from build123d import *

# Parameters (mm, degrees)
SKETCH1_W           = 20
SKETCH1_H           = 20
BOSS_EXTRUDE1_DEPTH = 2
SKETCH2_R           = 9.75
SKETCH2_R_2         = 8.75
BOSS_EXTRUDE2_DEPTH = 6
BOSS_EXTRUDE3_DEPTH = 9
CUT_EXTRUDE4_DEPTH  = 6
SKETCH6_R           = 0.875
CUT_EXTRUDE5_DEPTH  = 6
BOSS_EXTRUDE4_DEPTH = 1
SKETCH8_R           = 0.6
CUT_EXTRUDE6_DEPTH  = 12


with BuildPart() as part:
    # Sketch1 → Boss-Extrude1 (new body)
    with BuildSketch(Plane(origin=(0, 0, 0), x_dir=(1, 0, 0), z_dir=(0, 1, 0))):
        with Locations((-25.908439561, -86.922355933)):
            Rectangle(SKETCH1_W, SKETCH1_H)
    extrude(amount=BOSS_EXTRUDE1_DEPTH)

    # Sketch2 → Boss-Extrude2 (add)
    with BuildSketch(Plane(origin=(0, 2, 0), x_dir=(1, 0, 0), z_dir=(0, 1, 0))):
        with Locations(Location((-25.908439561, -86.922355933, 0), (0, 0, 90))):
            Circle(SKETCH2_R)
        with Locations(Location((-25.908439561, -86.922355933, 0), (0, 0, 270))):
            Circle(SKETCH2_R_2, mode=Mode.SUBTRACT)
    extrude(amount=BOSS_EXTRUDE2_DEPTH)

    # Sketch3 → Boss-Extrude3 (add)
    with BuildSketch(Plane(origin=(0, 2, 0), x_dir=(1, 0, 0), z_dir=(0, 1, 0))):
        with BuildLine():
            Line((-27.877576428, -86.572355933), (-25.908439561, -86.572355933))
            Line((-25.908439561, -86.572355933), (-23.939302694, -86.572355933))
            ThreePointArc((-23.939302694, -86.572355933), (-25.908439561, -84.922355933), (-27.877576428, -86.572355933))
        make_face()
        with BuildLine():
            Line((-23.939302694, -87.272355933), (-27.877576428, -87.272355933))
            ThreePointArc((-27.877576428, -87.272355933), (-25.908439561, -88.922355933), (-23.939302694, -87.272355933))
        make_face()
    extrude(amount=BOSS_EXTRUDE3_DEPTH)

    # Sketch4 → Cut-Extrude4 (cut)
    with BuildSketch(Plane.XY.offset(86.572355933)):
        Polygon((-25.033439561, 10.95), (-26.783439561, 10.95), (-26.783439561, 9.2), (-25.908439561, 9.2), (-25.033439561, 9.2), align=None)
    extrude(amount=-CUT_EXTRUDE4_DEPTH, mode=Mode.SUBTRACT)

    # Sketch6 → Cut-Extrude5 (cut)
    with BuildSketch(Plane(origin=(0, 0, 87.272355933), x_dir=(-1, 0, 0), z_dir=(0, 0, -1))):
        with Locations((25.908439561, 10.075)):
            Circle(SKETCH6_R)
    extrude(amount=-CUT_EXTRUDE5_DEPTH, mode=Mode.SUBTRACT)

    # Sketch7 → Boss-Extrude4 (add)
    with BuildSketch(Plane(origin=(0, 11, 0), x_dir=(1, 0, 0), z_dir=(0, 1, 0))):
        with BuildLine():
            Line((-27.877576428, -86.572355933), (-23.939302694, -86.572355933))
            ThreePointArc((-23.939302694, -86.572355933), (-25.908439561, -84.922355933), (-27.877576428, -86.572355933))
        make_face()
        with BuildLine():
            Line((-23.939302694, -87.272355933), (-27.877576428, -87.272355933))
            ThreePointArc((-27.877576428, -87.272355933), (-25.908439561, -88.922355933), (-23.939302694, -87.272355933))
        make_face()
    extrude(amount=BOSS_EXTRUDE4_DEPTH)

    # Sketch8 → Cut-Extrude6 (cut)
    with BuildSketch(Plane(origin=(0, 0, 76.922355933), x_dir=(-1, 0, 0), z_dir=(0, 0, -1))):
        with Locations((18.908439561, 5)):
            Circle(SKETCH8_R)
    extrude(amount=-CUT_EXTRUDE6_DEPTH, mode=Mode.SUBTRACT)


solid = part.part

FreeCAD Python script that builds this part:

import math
import FreeCAD as App
import Part
import Sketcher

V = App.Vector
Q = App.Units.Quantity


def add_polygon(sketch, points):
    """Adds a closed chain of lines whose ends are joined by coincident constraints."""
    first, n = sketch.GeometryCount, len(points)
    for a, b in zip(points, points[1:] + points[:1]):
        sketch.addGeometry(Part.LineSegment(App.Vector(*a, 0), App.Vector(*b, 0)), False)
    for i in range(n):
        sketch.addConstraint(Sketcher.Constraint("Coincident", first + i, 2, first + (i + 1) % n, 1))

doc = App.newDocument("Part")
body = doc.addObject("PartDesign::Body", "Body")

# Sketch on XZ plane
sketch1 = body.newObject("Sketcher::SketchObject", "Sketch")
sketch1.AttachmentSupport = (doc.getObject("XZ_Plane"), [""])
sketch1.MapMode = "FlatFace"
add_polygon(sketch1, [(-35.90844, 76.922356), (-35.90844, 96.922356), (-15.90844, 96.922356), (-15.90844, 76.922356)])  # lines 0-3
sketch1.addConstraint([
    Sketcher.Constraint("Vertical", 0),
    Sketcher.Constraint("Horizontal", 1),
    Sketcher.Constraint("Vertical", 2),
    Sketcher.Constraint("Horizontal", 3),
    Sketcher.Constraint("Equal", 3, 0),
    Sketcher.Constraint("DistanceX", 1, 1, 1, 2, Q("20 mm")),
    Sketcher.Constraint("DistanceX", 0, 2, -1, 1, Q("35.90844 mm")),
    Sketcher.Constraint("DistanceY", -1, 1, 0, 2, Q("96.922356 mm")),
])
pad1 = body.newObject("PartDesign::Pad", "Pad")
pad1.Profile = sketch1
pad1.Length = 2
pad1.Reversed = True

# Sketch on XZ plane
sketch2 = body.newObject("Sketcher::SketchObject", "Sketch001")
sketch2.AttachmentSupport = (doc.getObject("XZ_Plane"), [""])
sketch2.MapMode = "FlatFace"
sketch2.AttachmentOffset = App.Placement(V(0, 0, -2), App.Rotation())
sketch2.addGeometry([
    Part.Circle(V(-25.90844, 86.922356, 0), V(0, 0, 1), 9.75),
    Part.Circle(V(-25.90844, 86.922356, 0), V(0, 0, 1), 8.75),
], False)
sketch2.addConstraint([
    Sketcher.Constraint("Coincident", 1, 3, 0, 3),
    Sketcher.Constraint("Diameter", 0, Q("19.5 mm")),
    Sketcher.Constraint("Diameter", 1, Q("17.5 mm")),
    Sketcher.Constraint("DistanceX", 0, 3, -1, 1, Q("25.90844 mm")),
    Sketcher.Constraint("DistanceY", -1, 1, 0, 3, Q("86.922356 mm")),
])
pad2 = body.newObject("PartDesign::Pad", "Pad001")
pad2.Profile = sketch2
pad2.Length = 6
pad2.Reversed = True

# Sketch on XZ plane
sketch3 = body.newObject("Sketcher::SketchObject", "Sketch002")
sketch3.AttachmentSupport = (doc.getObject("XZ_Plane"), [""])
sketch3.MapMode = "FlatFace"
sketch3.AttachmentOffset = App.Placement(V(0, 0, -2), App.Rotation())
sketch3.addGeometry([
    Part.LineSegment(V(-27.877576, 86.572356, 0), V(-23.939303, 86.572356, 0)),
    Part.ArcOfCircle(Part.Circle(V(-25.90844, 86.922356, 0), V(0, 0, 1), 2), math.radians(-169.921342), math.radians(-10.078658)),
    Part.LineSegment(V(-23.939303, 87.272356, 0), V(-27.877576, 87.272356, 0)),
    Part.ArcOfCircle(Part.Circle(V(-25.90844, 86.922356, 0), V(0, 0, 1), 2), math.radians(10.078658), math.radians(169.921342)),
], False)
sketch3.addConstraint([
    Sketcher.Constraint("Coincident", 0, 1, 1, 1),
    Sketcher.Constraint("Coincident", 1, 2, 0, 2),
    Sketcher.Constraint("Coincident", 2, 1, 3, 1),
    Sketcher.Constraint("Coincident", 3, 2, 2, 2),
    Sketcher.Constraint("Horizontal", 0),
    Sketcher.Constraint("Horizontal", 2),
    Sketcher.Constraint("Coincident", 3, 3, 1, 3),
    Sketcher.Constraint("Equal", 1, 3),
    Sketcher.Constraint("Vertical", 1, 2, 2, 1),
    Sketcher.Constraint("Radius", 1, Q("2 mm")),
    Sketcher.Constraint("DistanceY", 1, 2, 2, 1, Q("0.7 mm")),
    Sketcher.Constraint("DistanceX", 1, 3, -1, 1, Q("25.90844 mm")),
    Sketcher.Constraint("DistanceY", -1, 1, 1, 3, Q("86.922356 mm")),
])
pad3 = body.newObject("PartDesign::Pad", "Pad002")
pad3.Profile = sketch3
pad3.Length = 9
pad3.Reversed = True

# Sketch on XY plane
sketch4 = body.newObject("Sketcher::SketchObject", "Sketch003")
sketch4.AttachmentSupport = (doc.getObject("XY_Plane"), [""])
sketch4.MapMode = "FlatFace"
sketch4.AttachmentOffset = App.Placement(V(0, 0, 86.572356), App.Rotation())
add_polygon(sketch4, [(-25.03344, 10.95), (-26.78344, 10.95), (-26.78344, 9.2), (-25.03344, 9.2)])  # lines 0-3
sketch4.addConstraint([
    Sketcher.Constraint("Horizontal", 0),
    Sketcher.Constraint("Vertical", 1),
    Sketcher.Constraint("Horizontal", 2),
    Sketcher.Constraint("Vertical", 3),
    Sketcher.Constraint("Equal", 2, 1),
    Sketcher.Constraint("DistanceX", 0, 2, 0, 1, Q("1.75 mm")),
    Sketcher.Constraint("DistanceY", -1, 1, 1, 2, Q("9.2 mm")),
    Sketcher.Constraint("DistanceX", 0, 2, -1, 1, Q("26.78344 mm")),
])
pocket1 = body.newObject("PartDesign::Pocket", "Pocket")
pocket1.Profile = sketch4
pocket1.Length = 6

# Sketch on XY plane
sketch5 = body.newObject("Sketcher::SketchObject", "Sketch004")
sketch5.AttachmentSupport = (doc.getObject("XY_Plane"), [""])
sketch5.MapMode = "FlatFace"
sketch5.AttachmentOffset = App.Placement(V(0, 0, 87.272356), App.Rotation())
sketch5.addGeometry(Part.Circle(V(-25.90844, 10.075, 0), V(0, 0, 1), 0.875), False)
sketch5.addConstraint([
    Sketcher.Constraint("Diameter", 0, Q("1.75 mm")),
    Sketcher.Constraint("DistanceY", -1, 1, 0, 3, Q("10.075 mm")),
    Sketcher.Constraint("DistanceX", 0, 3, -1, 1, Q("25.90844 mm")),
])
pocket2 = body.newObject("PartDesign::Pocket", "Pocket001")
pocket2.Profile = sketch5
pocket2.Length = 6
pocket2.Reversed = True

# Sketch on XZ plane
sketch6 = body.newObject("Sketcher::SketchObject", "Sketch005")
sketch6.AttachmentSupport = (doc.getObject("XZ_Plane"), [""])
sketch6.MapMode = "FlatFace"
sketch6.AttachmentOffset = App.Placement(V(0, 0, -11), App.Rotation())
sketch6.addGeometry([
    Part.LineSegment(V(-27.877576, 86.572356, 0), V(-23.939303, 86.572356, 0)),
    Part.ArcOfCircle(Part.Circle(V(-25.90844, 86.922356, 0), V(0, 0, 1), 2), math.radians(-169.921342), math.radians(-10.078658)),
    Part.LineSegment(V(-23.939303, 87.272356, 0), V(-27.877576, 87.272356, 0)),
    Part.ArcOfCircle(Part.Circle(V(-25.90844, 86.922356, 0), V(0, 0, 1), 2), math.radians(10.078658), math.radians(169.921342)),
], False)
sketch6.addConstraint([
    Sketcher.Constraint("Coincident", 0, 1, 1, 1),
    Sketcher.Constraint("Coincident", 1, 2, 0, 2),
    Sketcher.Constraint("Coincident", 2, 1, 3, 1),
    Sketcher.Constraint("Coincident", 3, 2, 2, 2),
    Sketcher.Constraint("Horizontal", 0),
    Sketcher.Constraint("Horizontal", 2),
    Sketcher.Constraint("Coincident", 3, 3, 1, 3),
    Sketcher.Constraint("Equal", 1, 3),
    Sketcher.Constraint("Vertical", 1, 2, 2, 1),
    Sketcher.Constraint("Radius", 1, Q("2 mm")),
    Sketcher.Constraint("DistanceY", 1, 2, 2, 1, Q("0.7 mm")),
    Sketcher.Constraint("DistanceX", 1, 3, -1, 1, Q("25.90844 mm")),
    Sketcher.Constraint("DistanceY", -1, 1, 1, 3, Q("86.922356 mm")),
])
pad4 = body.newObject("PartDesign::Pad", "Pad003")
pad4.Profile = sketch6
pad4.Length = 1
pad4.Reversed = True

# Sketch on XY plane
sketch7 = body.newObject("Sketcher::SketchObject", "Sketch006")
sketch7.AttachmentSupport = (doc.getObject("XY_Plane"), [""])
sketch7.MapMode = "FlatFace"
sketch7.AttachmentOffset = App.Placement(V(0, 0, 76.922356), App.Rotation())
sketch7.addGeometry(Part.Circle(V(-18.90844, 5, 0), V(0, 0, 1), 0.6), False)
sketch7.addConstraint([
    Sketcher.Constraint("Diameter", 0, Q("1.2 mm")),
    Sketcher.Constraint("DistanceY", -1, 1, 0, 3, Q("5 mm")),
    Sketcher.Constraint("DistanceX", 0, 3, -1, 1, Q("18.90844 mm")),
])
pocket3 = body.newObject("PartDesign::Pocket", "Pocket002")
pocket3.Profile = sketch7
pocket3.Length = 12
pocket3.Reversed = True

doc.recompute()
